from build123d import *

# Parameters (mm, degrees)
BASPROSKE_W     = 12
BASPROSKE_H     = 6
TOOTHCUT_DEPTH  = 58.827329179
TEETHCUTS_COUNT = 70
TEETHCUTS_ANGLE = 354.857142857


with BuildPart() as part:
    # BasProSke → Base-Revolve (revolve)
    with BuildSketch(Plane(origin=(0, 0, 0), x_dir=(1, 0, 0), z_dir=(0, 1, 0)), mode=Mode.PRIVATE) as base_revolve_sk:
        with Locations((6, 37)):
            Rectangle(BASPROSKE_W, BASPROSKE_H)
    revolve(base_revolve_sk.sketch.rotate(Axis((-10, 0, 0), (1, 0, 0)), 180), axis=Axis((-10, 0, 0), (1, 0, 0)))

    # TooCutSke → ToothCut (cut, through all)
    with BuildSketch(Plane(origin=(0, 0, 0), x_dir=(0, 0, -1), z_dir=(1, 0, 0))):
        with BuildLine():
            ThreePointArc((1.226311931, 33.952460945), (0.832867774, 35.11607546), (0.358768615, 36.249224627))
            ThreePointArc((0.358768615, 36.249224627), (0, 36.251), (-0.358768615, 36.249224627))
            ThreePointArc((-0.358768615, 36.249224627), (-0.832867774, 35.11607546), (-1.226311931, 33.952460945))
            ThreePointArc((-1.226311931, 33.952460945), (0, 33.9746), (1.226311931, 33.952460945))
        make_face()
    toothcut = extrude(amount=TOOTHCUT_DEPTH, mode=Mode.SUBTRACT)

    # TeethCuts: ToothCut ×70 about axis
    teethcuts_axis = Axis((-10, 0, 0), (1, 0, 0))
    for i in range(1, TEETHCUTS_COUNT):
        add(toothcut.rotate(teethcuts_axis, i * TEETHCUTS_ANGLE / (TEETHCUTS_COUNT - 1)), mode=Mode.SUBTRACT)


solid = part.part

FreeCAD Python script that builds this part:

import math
import FreeCAD as App
import Part
import Sketcher

V = App.Vector
Q = App.Units.Quantity


def add_polygon(sketch, points):
    """Adds a closed chain of lines whose ends are joined by coincident constraints."""
    first, n = sketch.GeometryCount, len(points)
    for a, b in zip(points, points[1:] + points[:1]):
        sketch.addGeometry(Part.LineSegment(App.Vector(*a, 0), App.Vector(*b, 0)), False)
    for i in range(n):
        sketch.addConstraint(Sketcher.Constraint("Coincident", first + i, 2, first + (i + 1) % n, 1))

doc = App.newDocument("Part")
params = doc.addObject("Spreadsheet::Sheet", "Params")
for row, (alias, value) in enumerate([
    ("sketch1_width", "12 mm"),
    ("sketch1_height", "6 mm"),
    ("revolution_angle", "360 deg"),
    ("sketch2_radius", "17.5 mm"),
], start=1):
    params.set(f"A{row}", alias)
    params.set(f"B{row}", "=" + value)
    params.setAlias(f"B{row}", alias)

body = doc.addObject("PartDesign::Body", "Body")

sketch1 = doc.addObject("Sketcher::SketchObject", "Sketch")
body.addObject(sketch1)
sketch1.AttachmentSupport = (doc.XZ_Plane, [""])
sketch1.MapMode = "FlatFace"
add_polygon(sketch1, [(0, -40), (0, -34), (12, -34), (12, -40)])
sketch1.addConstraint([
    Sketcher.Constraint("Vertical", 0),
    Sketcher.Constraint("Horizontal", 1),
    Sketcher.Constraint("Vertical", 2),
    Sketcher.Constraint("Horizontal", 3),
    Sketcher.Constraint("PointOnObject", 0, 2, -2),
    Sketcher.Constraint("DistanceX", 1, 1, 1, 2, Q("12 mm")),
    Sketcher.Constraint("DistanceY", 0, 1, 0, 2, Q("6 mm")),
    Sketcher.Constraint("DistanceY", 0, 2, -1, 1, Q("34 mm")),
])
sketch1.setExpression("Constraints[9]", "Params.sketch1_width")
sketch1.setExpression("Constraints[10]", "Params.sketch1_height")
revolution = doc.addObject("PartDesign::Revolution", "Revolution")
body.addObject(revolution)
revolution.Profile = sketch1
revolution.ReferenceAxis = (sketch1, ["H_Axis"])
revolution.setExpression("Angle", "Params.revolution_angle")

sketch2 = doc.addObject("Sketcher::SketchObject", "Sketch001")
body.addObject(sketch2)
sketch2.AttachmentSupport = (doc.YZ_Plane, [""])
sketch2.MapMode = "FlatFace"
sketch2.addGeometry([
    Part.ArcOfCircle(Part.Circle(V(28.932333, 15.538183, 0), V(0, 0, 1), 17.5), math.radians(-73.32967), math.radians(-65.284797)),
    Part.ArcOfCircle(Part.Circle(V(0.000006, 0, 0), V(0, 0, 1), 36.250994), math.radians(-0.567054), math.radians(0.567054)),
    Part.ArcOfCircle(Part.Circle(V(28.932333, -15.538183, 0), V(0, 0, 1), 17.5), math.radians(65.284797), math.radians(73.32967)),
    Part.ArcOfCircle(Part.Circle(V(0, 0, 0), V(0, 0, 1), 33.9746), math.radians(-2.068538), math.radians(2.068538)),
], False)
sketch2.addConstraint([
    Sketcher.Constraint("Coincident", 0, 2, 1, 1),
    Sketcher.Constraint("Coincident", 1, 2, 2, 1),
    Sketcher.Constraint("Coincident", 2, 2, 3, 2),
    Sketcher.Constraint("Coincident", 3, 1, 0, 1),
    Sketcher.Constraint("Coincident", 1, 3, -1, 1),
    Sketcher.Constraint("Coincident", 3, 3, -1, 1),
    Sketcher.Constraint("Equal", 0, 2),
    Sketcher.Constraint("Symmetric", 0, 3, 2, 3, -1),
    Sketcher.Constraint("Radius", 0, Q("17.5 mm")),
    Sketcher.Constraint("Radius", 3, Q("33.9746 mm")),
    Sketcher.Constraint("Radius", 1, Q("36.250994 mm")),
    Sketcher.Constraint("DistanceY", 0, 2, -1, 1, Q("0.358769 mm")),
    Sketcher.Constraint("DistanceY", -1, 1, 2, 2, Q("1.226312 mm")),
])
sketch2.setExpression("Constraints[8]", "Params.sketch2_radius")
pocket1 = doc.addObject("PartDesign::Pocket", "Pocket")
body.addObject(pocket1)
pocket1.Profile = sketch2
pocket1.Type = "ThroughAll"
pocket1.Reversed = True
doc.recompute()

polarpattern = doc.addObject("PartDesign::PolarPattern", "PolarPattern")
body.addObject(polarpattern)
polarpattern.Originals = [pocket1]
polarpattern.Axis = (doc.X_Axis, [""])
polarpattern.Angle = 360
polarpattern.Occurrences = 70
body.Tip = polarpattern

doc.recompute()
